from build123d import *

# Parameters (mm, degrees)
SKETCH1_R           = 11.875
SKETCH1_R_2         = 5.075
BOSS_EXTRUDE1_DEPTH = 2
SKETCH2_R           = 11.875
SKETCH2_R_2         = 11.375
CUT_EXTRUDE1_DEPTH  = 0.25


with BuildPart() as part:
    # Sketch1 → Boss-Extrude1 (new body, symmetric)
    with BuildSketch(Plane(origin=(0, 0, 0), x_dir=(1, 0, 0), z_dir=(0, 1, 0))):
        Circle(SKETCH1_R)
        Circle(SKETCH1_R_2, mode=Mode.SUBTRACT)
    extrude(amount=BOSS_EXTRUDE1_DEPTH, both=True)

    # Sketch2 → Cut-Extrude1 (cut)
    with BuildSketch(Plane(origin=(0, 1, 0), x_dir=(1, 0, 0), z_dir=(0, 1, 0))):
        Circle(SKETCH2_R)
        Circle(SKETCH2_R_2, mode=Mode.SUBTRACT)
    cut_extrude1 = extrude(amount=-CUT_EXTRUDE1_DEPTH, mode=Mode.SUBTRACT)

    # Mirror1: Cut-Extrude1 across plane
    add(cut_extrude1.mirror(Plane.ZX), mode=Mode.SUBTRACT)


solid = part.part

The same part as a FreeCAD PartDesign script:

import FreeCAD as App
import Part
import Sketcher
from FreeCAD import Vector

doc = App.newDocument("Part")
body = doc.addObject("PartDesign::Body", "Body")

# Sketch on XZ plane
sketch1 = doc.addObject("Sketcher::SketchObject", "Sketch")
body.addObject(sketch1)
sketch1.AttachmentSupport = (doc.XZ_Plane, [""])
sketch1.MapMode = "FlatFace"
sketch1.addGeometry(Part.Circle(Vector(0, 0, 0), Vector(0, 0, 1), 11.875), False)
sketch1.addGeometry(Part.Circle(Vector(0, 0, 0), Vector(0, 0, 1), 5.075), False)
sketch1.addConstraint(Sketcher.Constraint("Coincident", 0, 3, -1, 1))
sketch1.addConstraint(Sketcher.Constraint("Coincident", 1, 3, -1, 1))
sketch1.addConstraint(Sketcher.Constraint("Diameter", 0, 23.75))
sketch1.addConstraint(Sketcher.Constraint("Diameter", 1, 10.15))
pad1 = doc.addObject("PartDesign::Pad", "Pad")
body.addObject(pad1)
pad1.Profile = sketch1
pad1.Length = 4
pad1.Midplane = True

# Sketch on XZ plane
sketch2 = doc.addObject("Sketcher::SketchObject", "Sketch001")
body.addObject(sketch2)
sketch2.AttachmentSupport = (doc.XZ_Plane, [""])
sketch2.MapMode = "FlatFace"
sketch2.AttachmentOffset = App.Placement(Vector(0, 0, -1), App.Rotation())
sketch2.addGeometry(Part.Circle(Vector(0, 0, 0), Vector(0, 0, 1), 11.875), False)
sketch2.addGeometry(Part.Circle(Vector(0, 0, 0), Vector(0, 0, 1), 11.375), False)
sketch2.addConstraint(Sketcher.Constraint("Coincident", 0, 3, -1, 1))
sketch2.addConstraint(Sketcher.Constraint("Coincident", 1, 3, -1, 1))
sketch2.addConstraint(Sketcher.Constraint("Diameter", 0, 23.75))
sketch2.addConstraint(Sketcher.Constraint("Diameter", 1, 22.75))
pocket1 = doc.addObject("PartDesign::Pocket", "Pocket")
body.addObject(pocket1)
pocket1.Profile = sketch2
pocket1.Length = 0.25
pocket1.Reversed = True
doc.recompute()

mirrored = doc.addObject("PartDesign::Mirrored", "Mirrored")
body.addObject(mirrored)
mirrored.Originals = [pocket1]
mirrored.MirrorPlane = (doc.XZ_Plane, [""])
body.Tip = mirrored

doc.recompute()
